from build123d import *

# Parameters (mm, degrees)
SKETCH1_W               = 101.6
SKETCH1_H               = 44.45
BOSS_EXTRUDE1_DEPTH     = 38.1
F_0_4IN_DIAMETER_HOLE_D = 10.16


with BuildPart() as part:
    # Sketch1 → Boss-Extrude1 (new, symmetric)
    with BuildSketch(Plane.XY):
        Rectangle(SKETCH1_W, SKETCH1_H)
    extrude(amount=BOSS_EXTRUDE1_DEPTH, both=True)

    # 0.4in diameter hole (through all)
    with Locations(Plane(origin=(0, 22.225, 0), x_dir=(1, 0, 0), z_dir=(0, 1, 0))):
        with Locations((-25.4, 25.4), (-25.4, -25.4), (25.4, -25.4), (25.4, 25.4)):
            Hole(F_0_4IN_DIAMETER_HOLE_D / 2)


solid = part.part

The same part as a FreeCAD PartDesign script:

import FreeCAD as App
import Part
import Sketcher

V = App.Vector
Q = App.Units.Quantity


def add_polygon(sketch, points):
    """Adds a closed chain of lines whose ends are joined by coincident constraints."""
    first, n = sketch.GeometryCount, len(points)
    for a, b in zip(points, points[1:] + points[:1]):
        sketch.addGeometry(Part.LineSegment(App.Vector(*a, 0), App.Vector(*b, 0)), False)
    for i in range(n):
        sketch.addConstraint(Sketcher.Constraint("Coincident", first + i, 2, first + (i + 1) % n, 1))

doc = App.newDocument("Part")
body = doc.addObject("PartDesign::Body", "Body")

# Sketch on XY plane
sketch1 = body.newObject("Sketcher::SketchObject", "Sketch")
sketch1.AttachmentSupport = (doc.getObject("XY_Plane"), [""])
sketch1.MapMode = "FlatFace"
add_polygon(sketch1, [(-50.8, 22.225), (-50.8, -22.225), (50.8, -22.225), (50.8, 22.225)])  # lines 0-3
sketch1.addConstraint(Sketcher.Constraint("Vertical", 0))
sketch1.addConstraint(Sketcher.Constraint("Horizontal", 1))
sketch1.addConstraint(Sketcher.Constraint("Vertical", 2))
sketch1.addConstraint(Sketcher.Constraint("Horizontal", 3))
sketch1.addConstraint(Sketcher.Constraint("Symmetric", 0, 2, 2, 2, -1, 1))
sketch1.addConstraint(Sketcher.Constraint("DistanceX", 1, 1, 1, 2, Q("4 in")))
sketch1.addConstraint(Sketcher.Constraint("DistanceY", 0, 2, 0, 1, Q("1.75 in")))
pad1 = body.newObject("PartDesign::Pad", "Pad")
pad1.Profile = sketch1
pad1.Length = Q("3 in")
pad1.Midplane = True

# Sketch on XZ plane
sketch2 = body.newObject("Sketcher::SketchObject", "Sketch001")
sketch2.AttachmentSupport = (doc.getObject("XZ_Plane"), [""])
sketch2.MapMode = "FlatFace"
sketch2.AttachmentOffset = App.Placement(V(0, 0, -0.875 * 25.4), App.Rotation())
sketch2.addGeometry(Part.Circle(V(-25.4, -25.4, 0), V(0, 0, 1), 5.08), False)
sketch2.addGeometry(Part.Circle(V(-25.4, 25.4, 0), V(0, 0, 1), 5.08), False)
sketch2.addGeometry(Part.Circle(V(25.4, 25.4, 0), V(0, 0, 1), 5.08), False)
sketch2.addGeometry(Part.Circle(V(25.4, -25.4, 0), V(0, 0, 1), 5.08), False)
sketch2.addConstraint(Sketcher.Constraint("Equal", 0, 1))
sketch2.addConstraint(Sketcher.Constraint("Equal", 1, 2))
sketch2.addConstraint(Sketcher.Constraint("Equal", 2, 3))
sketch2.addConstraint(Sketcher.Constraint("Symmetric", 0, 3, 2, 3, -1, 1))
sketch2.addConstraint(Sketcher.Constraint("Symmetric", 1, 3, 3, 3, -1, 1))
sketch2.addConstraint(Sketcher.Constraint("Symmetric", 1, 3, 2, 3, -2))
sketch2.addConstraint(Sketcher.Constraint("Diameter", 0, Q("0.4 in")))
sketch2.addConstraint(Sketcher.Constraint("DistanceX", 0, 3, -1, 1, Q("1 in")))
sketch2.addConstraint(Sketcher.Constraint("DistanceY", 0, 3, -1, 1, Q("1 in")))
doc.recompute()
hole = body.newObject("PartDesign::Hole", "Hole")
hole.Profile = sketch2
hole.ThreadType = "None"
hole.Diameter = Q("0.4 in")
hole.DepthType = "ThroughAll"
hole.Reversed = True

doc.recompute()
